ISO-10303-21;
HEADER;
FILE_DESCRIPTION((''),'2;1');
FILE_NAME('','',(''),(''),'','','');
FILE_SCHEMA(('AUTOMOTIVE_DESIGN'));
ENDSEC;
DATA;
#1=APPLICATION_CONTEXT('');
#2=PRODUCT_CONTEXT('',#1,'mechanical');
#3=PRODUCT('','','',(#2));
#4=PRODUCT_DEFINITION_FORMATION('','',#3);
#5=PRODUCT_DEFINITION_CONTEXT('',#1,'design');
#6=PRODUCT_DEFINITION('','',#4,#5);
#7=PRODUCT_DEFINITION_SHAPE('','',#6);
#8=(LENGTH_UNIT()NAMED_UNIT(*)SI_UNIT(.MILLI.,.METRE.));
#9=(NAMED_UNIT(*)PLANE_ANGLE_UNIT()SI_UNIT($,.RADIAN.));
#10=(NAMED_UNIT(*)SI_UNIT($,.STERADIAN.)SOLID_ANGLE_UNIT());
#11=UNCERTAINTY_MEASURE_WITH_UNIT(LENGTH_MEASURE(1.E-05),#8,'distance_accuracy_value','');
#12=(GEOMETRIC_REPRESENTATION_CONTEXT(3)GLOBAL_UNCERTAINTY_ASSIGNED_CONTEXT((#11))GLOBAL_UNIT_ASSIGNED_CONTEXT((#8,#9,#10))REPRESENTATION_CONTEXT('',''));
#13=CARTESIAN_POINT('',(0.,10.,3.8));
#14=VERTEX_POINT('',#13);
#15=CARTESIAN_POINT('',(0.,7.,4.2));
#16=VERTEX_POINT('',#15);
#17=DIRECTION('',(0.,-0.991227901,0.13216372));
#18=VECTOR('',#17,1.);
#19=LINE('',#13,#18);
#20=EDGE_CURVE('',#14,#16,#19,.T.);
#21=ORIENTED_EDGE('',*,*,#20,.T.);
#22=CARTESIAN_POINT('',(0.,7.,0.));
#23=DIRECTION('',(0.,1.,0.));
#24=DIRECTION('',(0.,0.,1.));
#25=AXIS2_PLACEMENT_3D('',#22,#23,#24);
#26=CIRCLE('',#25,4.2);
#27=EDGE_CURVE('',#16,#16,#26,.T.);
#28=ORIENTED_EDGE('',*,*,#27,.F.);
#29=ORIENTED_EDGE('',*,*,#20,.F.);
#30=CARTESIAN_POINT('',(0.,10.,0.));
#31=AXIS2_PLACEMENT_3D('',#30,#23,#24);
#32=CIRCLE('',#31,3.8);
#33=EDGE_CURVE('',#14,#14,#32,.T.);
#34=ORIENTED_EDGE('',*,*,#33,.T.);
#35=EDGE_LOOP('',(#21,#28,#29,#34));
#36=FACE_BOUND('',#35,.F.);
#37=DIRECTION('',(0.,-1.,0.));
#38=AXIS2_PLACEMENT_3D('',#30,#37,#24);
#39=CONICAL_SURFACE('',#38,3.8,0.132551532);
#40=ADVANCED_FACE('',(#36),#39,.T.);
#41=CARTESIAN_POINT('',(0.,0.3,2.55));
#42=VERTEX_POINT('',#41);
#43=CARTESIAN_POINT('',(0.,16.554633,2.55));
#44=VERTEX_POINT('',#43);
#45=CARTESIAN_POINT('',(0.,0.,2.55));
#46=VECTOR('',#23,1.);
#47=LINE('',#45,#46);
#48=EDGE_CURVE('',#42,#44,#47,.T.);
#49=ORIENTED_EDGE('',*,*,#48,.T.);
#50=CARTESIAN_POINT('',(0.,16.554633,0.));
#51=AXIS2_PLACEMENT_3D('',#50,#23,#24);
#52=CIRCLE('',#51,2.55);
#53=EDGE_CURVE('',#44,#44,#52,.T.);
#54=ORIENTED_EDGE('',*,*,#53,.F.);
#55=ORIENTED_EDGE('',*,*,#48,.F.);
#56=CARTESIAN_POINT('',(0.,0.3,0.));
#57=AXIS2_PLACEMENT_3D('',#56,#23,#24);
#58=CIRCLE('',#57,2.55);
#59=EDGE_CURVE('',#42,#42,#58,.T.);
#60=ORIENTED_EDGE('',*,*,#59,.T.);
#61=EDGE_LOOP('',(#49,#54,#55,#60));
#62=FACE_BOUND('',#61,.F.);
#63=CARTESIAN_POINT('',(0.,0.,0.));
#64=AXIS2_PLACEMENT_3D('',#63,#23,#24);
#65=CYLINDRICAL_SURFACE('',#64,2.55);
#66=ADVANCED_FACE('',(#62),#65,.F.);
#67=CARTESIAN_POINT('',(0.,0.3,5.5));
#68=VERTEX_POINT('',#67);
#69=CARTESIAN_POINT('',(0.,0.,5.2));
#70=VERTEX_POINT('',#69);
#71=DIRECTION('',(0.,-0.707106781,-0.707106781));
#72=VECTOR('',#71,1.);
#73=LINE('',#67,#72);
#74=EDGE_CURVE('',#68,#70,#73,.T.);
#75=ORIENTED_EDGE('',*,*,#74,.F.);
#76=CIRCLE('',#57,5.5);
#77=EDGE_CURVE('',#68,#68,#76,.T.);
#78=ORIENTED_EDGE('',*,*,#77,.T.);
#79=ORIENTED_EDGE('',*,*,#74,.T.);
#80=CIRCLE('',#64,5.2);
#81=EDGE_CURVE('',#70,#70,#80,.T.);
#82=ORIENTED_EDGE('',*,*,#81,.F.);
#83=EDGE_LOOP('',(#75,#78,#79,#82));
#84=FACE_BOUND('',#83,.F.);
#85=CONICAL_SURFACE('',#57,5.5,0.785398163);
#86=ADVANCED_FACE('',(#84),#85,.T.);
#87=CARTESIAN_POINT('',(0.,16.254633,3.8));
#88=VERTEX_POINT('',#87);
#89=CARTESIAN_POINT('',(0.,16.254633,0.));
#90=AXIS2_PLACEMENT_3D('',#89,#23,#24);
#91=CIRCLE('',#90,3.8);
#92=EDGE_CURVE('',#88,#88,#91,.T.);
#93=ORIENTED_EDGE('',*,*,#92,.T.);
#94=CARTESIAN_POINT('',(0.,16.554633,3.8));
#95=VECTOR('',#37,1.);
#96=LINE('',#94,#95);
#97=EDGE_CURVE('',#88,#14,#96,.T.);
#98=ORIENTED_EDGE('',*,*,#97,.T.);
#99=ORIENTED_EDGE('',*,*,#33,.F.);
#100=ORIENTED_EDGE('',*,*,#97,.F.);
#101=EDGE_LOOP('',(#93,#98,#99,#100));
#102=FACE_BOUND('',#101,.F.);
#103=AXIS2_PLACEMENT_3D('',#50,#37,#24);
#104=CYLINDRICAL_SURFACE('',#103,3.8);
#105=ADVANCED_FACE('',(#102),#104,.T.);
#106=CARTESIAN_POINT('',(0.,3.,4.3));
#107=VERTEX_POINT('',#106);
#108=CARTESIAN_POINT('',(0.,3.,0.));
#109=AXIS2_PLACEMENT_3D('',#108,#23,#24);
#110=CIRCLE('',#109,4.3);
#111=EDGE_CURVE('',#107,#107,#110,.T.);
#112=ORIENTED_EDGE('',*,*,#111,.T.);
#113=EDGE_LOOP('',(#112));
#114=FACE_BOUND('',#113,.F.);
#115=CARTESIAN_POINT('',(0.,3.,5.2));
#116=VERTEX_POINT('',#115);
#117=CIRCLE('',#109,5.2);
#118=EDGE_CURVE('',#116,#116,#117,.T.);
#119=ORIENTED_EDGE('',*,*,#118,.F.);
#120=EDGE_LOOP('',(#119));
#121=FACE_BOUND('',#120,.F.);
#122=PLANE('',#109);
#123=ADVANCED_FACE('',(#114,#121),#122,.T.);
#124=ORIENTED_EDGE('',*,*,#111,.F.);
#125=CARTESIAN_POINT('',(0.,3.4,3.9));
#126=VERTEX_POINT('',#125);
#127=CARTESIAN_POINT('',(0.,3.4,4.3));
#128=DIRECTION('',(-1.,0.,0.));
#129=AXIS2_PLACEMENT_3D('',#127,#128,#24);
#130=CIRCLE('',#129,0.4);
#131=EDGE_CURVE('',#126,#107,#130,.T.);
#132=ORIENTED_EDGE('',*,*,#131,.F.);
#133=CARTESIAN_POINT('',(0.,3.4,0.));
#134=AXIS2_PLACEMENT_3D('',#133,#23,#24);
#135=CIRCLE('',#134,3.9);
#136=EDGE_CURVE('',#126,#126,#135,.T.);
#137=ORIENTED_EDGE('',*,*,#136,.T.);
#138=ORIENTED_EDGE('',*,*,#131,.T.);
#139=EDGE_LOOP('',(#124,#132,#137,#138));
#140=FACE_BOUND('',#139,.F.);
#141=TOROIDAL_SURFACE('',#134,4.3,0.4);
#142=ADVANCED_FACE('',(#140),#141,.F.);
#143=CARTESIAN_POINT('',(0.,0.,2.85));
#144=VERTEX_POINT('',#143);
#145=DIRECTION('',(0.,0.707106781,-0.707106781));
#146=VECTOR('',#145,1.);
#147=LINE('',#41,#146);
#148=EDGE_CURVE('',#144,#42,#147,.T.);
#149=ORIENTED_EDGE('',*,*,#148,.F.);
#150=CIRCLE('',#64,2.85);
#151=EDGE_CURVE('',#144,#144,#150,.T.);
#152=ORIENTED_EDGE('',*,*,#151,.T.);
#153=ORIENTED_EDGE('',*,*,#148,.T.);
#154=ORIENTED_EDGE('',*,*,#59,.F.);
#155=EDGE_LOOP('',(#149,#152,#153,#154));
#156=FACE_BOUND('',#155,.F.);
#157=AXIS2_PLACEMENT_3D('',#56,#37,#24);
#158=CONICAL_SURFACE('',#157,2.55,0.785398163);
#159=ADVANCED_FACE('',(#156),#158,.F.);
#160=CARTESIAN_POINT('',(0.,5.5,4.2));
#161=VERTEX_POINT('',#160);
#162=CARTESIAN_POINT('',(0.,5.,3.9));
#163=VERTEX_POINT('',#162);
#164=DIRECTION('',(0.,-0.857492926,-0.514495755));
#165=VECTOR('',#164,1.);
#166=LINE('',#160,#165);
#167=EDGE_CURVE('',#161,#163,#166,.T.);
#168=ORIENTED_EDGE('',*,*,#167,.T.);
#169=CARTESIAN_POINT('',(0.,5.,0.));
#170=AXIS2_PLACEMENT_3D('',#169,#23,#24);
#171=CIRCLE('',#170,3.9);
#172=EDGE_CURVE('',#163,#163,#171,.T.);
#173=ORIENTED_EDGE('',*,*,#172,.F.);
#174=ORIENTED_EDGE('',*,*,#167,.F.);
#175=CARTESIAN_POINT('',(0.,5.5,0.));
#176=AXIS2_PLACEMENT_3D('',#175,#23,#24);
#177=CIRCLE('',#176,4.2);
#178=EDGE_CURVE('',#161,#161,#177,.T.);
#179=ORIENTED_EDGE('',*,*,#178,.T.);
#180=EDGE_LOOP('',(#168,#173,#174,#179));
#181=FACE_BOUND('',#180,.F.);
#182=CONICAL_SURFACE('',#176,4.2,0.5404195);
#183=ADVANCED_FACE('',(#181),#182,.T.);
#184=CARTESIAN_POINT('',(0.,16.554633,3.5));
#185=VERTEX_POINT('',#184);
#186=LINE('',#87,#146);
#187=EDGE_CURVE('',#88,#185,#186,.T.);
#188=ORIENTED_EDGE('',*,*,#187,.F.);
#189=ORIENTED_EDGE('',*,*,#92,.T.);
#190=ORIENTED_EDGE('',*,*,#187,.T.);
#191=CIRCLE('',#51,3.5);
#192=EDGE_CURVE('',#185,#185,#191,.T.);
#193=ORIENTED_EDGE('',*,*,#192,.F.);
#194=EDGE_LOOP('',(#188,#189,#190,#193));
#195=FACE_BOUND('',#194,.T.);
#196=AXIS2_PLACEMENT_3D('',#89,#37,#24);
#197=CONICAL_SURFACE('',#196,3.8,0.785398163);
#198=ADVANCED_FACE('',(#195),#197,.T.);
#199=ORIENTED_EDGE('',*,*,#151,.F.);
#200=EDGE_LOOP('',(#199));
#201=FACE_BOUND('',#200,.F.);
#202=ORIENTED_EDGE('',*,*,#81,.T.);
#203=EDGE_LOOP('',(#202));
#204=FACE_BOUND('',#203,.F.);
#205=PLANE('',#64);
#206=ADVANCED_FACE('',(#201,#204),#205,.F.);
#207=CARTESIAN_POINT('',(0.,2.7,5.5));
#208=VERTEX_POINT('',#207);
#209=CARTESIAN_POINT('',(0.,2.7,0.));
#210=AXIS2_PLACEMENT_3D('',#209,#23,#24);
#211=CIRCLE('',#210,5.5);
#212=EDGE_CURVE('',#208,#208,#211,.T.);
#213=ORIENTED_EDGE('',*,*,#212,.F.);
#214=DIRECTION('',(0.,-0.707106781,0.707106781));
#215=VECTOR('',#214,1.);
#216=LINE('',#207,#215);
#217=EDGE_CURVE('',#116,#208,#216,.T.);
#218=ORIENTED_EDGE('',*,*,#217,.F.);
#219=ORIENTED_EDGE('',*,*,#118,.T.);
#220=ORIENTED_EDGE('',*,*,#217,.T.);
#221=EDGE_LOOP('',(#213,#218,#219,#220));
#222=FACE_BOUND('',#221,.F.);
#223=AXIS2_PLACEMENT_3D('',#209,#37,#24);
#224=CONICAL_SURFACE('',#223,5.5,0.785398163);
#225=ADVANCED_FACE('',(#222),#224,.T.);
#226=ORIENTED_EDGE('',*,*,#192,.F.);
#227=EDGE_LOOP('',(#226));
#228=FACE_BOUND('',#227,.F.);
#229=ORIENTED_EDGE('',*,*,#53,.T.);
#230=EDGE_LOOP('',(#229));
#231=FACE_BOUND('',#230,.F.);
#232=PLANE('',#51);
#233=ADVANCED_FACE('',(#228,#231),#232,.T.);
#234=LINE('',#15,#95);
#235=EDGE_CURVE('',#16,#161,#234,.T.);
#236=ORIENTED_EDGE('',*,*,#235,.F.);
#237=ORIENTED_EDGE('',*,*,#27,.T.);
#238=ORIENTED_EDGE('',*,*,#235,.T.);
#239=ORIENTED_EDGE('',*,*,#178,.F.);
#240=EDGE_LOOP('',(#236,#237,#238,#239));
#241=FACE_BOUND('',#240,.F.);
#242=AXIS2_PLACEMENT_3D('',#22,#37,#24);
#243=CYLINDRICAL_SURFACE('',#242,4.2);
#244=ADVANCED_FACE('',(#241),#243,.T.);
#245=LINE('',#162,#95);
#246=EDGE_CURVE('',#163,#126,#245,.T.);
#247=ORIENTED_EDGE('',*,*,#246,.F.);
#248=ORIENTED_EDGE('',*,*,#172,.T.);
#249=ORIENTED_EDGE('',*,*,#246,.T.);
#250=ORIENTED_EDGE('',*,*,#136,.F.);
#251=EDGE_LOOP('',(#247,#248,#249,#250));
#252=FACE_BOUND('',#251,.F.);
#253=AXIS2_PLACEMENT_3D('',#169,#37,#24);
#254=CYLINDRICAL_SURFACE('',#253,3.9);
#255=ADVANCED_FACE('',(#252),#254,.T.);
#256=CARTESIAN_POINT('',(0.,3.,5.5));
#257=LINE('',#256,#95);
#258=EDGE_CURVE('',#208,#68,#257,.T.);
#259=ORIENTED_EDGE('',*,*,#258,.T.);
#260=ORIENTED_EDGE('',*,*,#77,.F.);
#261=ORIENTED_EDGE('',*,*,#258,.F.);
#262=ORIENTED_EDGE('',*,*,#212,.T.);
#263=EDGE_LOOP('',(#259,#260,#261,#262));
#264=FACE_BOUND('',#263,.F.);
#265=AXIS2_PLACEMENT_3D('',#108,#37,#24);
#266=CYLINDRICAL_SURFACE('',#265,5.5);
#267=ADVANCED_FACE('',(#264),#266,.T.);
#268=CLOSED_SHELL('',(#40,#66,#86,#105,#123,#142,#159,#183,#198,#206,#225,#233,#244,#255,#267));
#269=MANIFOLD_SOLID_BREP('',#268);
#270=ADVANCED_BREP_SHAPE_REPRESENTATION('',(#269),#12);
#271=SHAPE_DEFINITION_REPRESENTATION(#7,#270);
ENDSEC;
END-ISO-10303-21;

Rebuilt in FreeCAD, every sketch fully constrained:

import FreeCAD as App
import Part
import Sketcher
from FreeCAD import Vector
Q = App.Units.Quantity


def edges_at(feature, points):
    """Names of the edges that pass closest to the given points."""
    edges = feature.Shape.Edges
    near = lambda p: min(range(len(edges)), key=lambda i: edges[i].distToShape(Part.Vertex(*p))[0])
    return sorted({f"Edge{near(p) + 1}" for p in points})


def add_polygon(sketch, points):
    """Adds a closed chain of lines whose ends are joined by coincident constraints."""
    first, n = sketch.GeometryCount, len(points)
    for a, b in zip(points, points[1:] + points[:1]):
        sketch.addGeometry(Part.LineSegment(App.Vector(*a, 0), App.Vector(*b, 0)), False)
    for i in range(n):
        sketch.addConstraint(Sketcher.Constraint("Coincident", first + i, 2, first + (i + 1) % n, 1))

doc = App.newDocument("Part")
params = doc.addObject("Spreadsheet::Sheet", "Params")
for row, (alias, value) in enumerate([
    ("sketch1_width", "2 mm"),
    ("sketch1_width2", "3 mm"),
    ("sketch1_width3", "1.5 mm"),
    ("sketch1_height", "1.6 mm"),
    ("sketch1_height2", "2.95 mm"),
    ("revolution_angle", "360 deg"),
    ("fillet_radius", "0.4 mm"),
    ("chamfer_size", "0.3 mm"),
], start=1):
    params.set(f"A{row}", alias)
    params.set(f"B{row}", "=" + value)
    params.setAlias(f"B{row}", alias)

body = doc.addObject("PartDesign::Body", "Body")

sketch1 = body.newObject("Sketcher::SketchObject", "Sketch")
sketch1.AttachmentSupport = (doc.getObject("YZ_Plane"), [""])
sketch1.MapMode = "FlatFace"
add_polygon(sketch1, [(0, 5.5), (0, 2.5), (16.6, 2.5), (16.6, 3.8), (10, 3.8), (7, 4.2), (5.5, 4.2), (5, 3.9), (3, 3.9), (3, 5.5)])
sketch1.addConstraint(Sketcher.Constraint("Vertical", 0))
sketch1.addConstraint(Sketcher.Constraint("Horizontal", 1))
sketch1.addConstraint(Sketcher.Constraint("Vertical", 2))
sketch1.addConstraint(Sketcher.Constraint("Horizontal", 3))
sketch1.addConstraint(Sketcher.Constraint("Horizontal", 5))
sketch1.addConstraint(Sketcher.Constraint("Horizontal", 7))
sketch1.addConstraint(Sketcher.Constraint("Vertical", 8))
sketch1.addConstraint(Sketcher.Constraint("Horizontal", 9))
sketch1.addConstraint(Sketcher.Constraint("PointOnObject", 0, 2, -2))
sketch1.addConstraint(Sketcher.Constraint("DistanceX", 7, 2, 7, 1, Q("2 mm")))
sketch1.addConstraint(Sketcher.Constraint("DistanceX", 9, 2, 9, 1, Q("3 mm")))
sketch1.addConstraint(Sketcher.Constraint("DistanceX", 5, 2, 5, 1, Q("1.5 mm")))
sketch1.addConstraint(Sketcher.Constraint("DistanceY", 8, 1, 8, 2, Q("1.6 mm")))
sketch1.addConstraint(Sketcher.Constraint("DistanceX", -1, 1, 3, 2, Q("10 mm")))
sketch1.addConstraint(Sketcher.Constraint("DistanceX", -1, 1, 4, 2, Q("7 mm")))
sketch1.addConstraint(Sketcher.Constraint("DistanceY", 0, 2, 0, 1, Q("2.95 mm")))
sketch1.addConstraint(Sketcher.Constraint("DistanceY", 2, 1, 2, 2, Q("1.25 mm")))
sketch1.addConstraint(Sketcher.Constraint("DistanceY", -1, 1, 2, 2, Q("3.8 mm")))
sketch1.addConstraint(Sketcher.Constraint("DistanceY", -1, 1, 4, 2, Q("4.2 mm")))
sketch1.addConstraint(Sketcher.Constraint("DistanceX", 1, 1, 1, 2, Q("16.554633 mm")))
sketch1.setExpression("Constraints[19]", "Params.sketch1_width")
sketch1.setExpression("Constraints[20]", "Params.sketch1_width2")
sketch1.setExpression("Constraints[21]", "Params.sketch1_width3")
sketch1.setExpression("Constraints[22]", "Params.sketch1_height")
sketch1.setExpression("Constraints[25]", "Params.sketch1_height2")
revolution = body.newObject("PartDesign::Revolution", "Revolution")
revolution.Profile = sketch1
revolution.ReferenceAxis = (sketch1, ["H_Axis"])
revolution.setExpression("Angle", "Params.revolution_angle")
doc.recompute()

fillet = body.newObject("PartDesign::Fillet", "Fillet")
fillet.Base = (revolution, edges_at(revolution, [(0, 3, -3.9)]))
fillet.setExpression("Radius", "Params.fillet_radius")
doc.recompute()

chamfer = body.newObject("PartDesign::Chamfer", "Chamfer")
chamfer.Base = (fillet, edges_at(fillet, [
    (0, 3, -5.5),
    (0, 0, -5.5),
    (0, 16.555, -3.8),
    (0, 0, -2.55),
]))
chamfer.setExpression("Size", "Params.chamfer_size")

doc.recompute()
